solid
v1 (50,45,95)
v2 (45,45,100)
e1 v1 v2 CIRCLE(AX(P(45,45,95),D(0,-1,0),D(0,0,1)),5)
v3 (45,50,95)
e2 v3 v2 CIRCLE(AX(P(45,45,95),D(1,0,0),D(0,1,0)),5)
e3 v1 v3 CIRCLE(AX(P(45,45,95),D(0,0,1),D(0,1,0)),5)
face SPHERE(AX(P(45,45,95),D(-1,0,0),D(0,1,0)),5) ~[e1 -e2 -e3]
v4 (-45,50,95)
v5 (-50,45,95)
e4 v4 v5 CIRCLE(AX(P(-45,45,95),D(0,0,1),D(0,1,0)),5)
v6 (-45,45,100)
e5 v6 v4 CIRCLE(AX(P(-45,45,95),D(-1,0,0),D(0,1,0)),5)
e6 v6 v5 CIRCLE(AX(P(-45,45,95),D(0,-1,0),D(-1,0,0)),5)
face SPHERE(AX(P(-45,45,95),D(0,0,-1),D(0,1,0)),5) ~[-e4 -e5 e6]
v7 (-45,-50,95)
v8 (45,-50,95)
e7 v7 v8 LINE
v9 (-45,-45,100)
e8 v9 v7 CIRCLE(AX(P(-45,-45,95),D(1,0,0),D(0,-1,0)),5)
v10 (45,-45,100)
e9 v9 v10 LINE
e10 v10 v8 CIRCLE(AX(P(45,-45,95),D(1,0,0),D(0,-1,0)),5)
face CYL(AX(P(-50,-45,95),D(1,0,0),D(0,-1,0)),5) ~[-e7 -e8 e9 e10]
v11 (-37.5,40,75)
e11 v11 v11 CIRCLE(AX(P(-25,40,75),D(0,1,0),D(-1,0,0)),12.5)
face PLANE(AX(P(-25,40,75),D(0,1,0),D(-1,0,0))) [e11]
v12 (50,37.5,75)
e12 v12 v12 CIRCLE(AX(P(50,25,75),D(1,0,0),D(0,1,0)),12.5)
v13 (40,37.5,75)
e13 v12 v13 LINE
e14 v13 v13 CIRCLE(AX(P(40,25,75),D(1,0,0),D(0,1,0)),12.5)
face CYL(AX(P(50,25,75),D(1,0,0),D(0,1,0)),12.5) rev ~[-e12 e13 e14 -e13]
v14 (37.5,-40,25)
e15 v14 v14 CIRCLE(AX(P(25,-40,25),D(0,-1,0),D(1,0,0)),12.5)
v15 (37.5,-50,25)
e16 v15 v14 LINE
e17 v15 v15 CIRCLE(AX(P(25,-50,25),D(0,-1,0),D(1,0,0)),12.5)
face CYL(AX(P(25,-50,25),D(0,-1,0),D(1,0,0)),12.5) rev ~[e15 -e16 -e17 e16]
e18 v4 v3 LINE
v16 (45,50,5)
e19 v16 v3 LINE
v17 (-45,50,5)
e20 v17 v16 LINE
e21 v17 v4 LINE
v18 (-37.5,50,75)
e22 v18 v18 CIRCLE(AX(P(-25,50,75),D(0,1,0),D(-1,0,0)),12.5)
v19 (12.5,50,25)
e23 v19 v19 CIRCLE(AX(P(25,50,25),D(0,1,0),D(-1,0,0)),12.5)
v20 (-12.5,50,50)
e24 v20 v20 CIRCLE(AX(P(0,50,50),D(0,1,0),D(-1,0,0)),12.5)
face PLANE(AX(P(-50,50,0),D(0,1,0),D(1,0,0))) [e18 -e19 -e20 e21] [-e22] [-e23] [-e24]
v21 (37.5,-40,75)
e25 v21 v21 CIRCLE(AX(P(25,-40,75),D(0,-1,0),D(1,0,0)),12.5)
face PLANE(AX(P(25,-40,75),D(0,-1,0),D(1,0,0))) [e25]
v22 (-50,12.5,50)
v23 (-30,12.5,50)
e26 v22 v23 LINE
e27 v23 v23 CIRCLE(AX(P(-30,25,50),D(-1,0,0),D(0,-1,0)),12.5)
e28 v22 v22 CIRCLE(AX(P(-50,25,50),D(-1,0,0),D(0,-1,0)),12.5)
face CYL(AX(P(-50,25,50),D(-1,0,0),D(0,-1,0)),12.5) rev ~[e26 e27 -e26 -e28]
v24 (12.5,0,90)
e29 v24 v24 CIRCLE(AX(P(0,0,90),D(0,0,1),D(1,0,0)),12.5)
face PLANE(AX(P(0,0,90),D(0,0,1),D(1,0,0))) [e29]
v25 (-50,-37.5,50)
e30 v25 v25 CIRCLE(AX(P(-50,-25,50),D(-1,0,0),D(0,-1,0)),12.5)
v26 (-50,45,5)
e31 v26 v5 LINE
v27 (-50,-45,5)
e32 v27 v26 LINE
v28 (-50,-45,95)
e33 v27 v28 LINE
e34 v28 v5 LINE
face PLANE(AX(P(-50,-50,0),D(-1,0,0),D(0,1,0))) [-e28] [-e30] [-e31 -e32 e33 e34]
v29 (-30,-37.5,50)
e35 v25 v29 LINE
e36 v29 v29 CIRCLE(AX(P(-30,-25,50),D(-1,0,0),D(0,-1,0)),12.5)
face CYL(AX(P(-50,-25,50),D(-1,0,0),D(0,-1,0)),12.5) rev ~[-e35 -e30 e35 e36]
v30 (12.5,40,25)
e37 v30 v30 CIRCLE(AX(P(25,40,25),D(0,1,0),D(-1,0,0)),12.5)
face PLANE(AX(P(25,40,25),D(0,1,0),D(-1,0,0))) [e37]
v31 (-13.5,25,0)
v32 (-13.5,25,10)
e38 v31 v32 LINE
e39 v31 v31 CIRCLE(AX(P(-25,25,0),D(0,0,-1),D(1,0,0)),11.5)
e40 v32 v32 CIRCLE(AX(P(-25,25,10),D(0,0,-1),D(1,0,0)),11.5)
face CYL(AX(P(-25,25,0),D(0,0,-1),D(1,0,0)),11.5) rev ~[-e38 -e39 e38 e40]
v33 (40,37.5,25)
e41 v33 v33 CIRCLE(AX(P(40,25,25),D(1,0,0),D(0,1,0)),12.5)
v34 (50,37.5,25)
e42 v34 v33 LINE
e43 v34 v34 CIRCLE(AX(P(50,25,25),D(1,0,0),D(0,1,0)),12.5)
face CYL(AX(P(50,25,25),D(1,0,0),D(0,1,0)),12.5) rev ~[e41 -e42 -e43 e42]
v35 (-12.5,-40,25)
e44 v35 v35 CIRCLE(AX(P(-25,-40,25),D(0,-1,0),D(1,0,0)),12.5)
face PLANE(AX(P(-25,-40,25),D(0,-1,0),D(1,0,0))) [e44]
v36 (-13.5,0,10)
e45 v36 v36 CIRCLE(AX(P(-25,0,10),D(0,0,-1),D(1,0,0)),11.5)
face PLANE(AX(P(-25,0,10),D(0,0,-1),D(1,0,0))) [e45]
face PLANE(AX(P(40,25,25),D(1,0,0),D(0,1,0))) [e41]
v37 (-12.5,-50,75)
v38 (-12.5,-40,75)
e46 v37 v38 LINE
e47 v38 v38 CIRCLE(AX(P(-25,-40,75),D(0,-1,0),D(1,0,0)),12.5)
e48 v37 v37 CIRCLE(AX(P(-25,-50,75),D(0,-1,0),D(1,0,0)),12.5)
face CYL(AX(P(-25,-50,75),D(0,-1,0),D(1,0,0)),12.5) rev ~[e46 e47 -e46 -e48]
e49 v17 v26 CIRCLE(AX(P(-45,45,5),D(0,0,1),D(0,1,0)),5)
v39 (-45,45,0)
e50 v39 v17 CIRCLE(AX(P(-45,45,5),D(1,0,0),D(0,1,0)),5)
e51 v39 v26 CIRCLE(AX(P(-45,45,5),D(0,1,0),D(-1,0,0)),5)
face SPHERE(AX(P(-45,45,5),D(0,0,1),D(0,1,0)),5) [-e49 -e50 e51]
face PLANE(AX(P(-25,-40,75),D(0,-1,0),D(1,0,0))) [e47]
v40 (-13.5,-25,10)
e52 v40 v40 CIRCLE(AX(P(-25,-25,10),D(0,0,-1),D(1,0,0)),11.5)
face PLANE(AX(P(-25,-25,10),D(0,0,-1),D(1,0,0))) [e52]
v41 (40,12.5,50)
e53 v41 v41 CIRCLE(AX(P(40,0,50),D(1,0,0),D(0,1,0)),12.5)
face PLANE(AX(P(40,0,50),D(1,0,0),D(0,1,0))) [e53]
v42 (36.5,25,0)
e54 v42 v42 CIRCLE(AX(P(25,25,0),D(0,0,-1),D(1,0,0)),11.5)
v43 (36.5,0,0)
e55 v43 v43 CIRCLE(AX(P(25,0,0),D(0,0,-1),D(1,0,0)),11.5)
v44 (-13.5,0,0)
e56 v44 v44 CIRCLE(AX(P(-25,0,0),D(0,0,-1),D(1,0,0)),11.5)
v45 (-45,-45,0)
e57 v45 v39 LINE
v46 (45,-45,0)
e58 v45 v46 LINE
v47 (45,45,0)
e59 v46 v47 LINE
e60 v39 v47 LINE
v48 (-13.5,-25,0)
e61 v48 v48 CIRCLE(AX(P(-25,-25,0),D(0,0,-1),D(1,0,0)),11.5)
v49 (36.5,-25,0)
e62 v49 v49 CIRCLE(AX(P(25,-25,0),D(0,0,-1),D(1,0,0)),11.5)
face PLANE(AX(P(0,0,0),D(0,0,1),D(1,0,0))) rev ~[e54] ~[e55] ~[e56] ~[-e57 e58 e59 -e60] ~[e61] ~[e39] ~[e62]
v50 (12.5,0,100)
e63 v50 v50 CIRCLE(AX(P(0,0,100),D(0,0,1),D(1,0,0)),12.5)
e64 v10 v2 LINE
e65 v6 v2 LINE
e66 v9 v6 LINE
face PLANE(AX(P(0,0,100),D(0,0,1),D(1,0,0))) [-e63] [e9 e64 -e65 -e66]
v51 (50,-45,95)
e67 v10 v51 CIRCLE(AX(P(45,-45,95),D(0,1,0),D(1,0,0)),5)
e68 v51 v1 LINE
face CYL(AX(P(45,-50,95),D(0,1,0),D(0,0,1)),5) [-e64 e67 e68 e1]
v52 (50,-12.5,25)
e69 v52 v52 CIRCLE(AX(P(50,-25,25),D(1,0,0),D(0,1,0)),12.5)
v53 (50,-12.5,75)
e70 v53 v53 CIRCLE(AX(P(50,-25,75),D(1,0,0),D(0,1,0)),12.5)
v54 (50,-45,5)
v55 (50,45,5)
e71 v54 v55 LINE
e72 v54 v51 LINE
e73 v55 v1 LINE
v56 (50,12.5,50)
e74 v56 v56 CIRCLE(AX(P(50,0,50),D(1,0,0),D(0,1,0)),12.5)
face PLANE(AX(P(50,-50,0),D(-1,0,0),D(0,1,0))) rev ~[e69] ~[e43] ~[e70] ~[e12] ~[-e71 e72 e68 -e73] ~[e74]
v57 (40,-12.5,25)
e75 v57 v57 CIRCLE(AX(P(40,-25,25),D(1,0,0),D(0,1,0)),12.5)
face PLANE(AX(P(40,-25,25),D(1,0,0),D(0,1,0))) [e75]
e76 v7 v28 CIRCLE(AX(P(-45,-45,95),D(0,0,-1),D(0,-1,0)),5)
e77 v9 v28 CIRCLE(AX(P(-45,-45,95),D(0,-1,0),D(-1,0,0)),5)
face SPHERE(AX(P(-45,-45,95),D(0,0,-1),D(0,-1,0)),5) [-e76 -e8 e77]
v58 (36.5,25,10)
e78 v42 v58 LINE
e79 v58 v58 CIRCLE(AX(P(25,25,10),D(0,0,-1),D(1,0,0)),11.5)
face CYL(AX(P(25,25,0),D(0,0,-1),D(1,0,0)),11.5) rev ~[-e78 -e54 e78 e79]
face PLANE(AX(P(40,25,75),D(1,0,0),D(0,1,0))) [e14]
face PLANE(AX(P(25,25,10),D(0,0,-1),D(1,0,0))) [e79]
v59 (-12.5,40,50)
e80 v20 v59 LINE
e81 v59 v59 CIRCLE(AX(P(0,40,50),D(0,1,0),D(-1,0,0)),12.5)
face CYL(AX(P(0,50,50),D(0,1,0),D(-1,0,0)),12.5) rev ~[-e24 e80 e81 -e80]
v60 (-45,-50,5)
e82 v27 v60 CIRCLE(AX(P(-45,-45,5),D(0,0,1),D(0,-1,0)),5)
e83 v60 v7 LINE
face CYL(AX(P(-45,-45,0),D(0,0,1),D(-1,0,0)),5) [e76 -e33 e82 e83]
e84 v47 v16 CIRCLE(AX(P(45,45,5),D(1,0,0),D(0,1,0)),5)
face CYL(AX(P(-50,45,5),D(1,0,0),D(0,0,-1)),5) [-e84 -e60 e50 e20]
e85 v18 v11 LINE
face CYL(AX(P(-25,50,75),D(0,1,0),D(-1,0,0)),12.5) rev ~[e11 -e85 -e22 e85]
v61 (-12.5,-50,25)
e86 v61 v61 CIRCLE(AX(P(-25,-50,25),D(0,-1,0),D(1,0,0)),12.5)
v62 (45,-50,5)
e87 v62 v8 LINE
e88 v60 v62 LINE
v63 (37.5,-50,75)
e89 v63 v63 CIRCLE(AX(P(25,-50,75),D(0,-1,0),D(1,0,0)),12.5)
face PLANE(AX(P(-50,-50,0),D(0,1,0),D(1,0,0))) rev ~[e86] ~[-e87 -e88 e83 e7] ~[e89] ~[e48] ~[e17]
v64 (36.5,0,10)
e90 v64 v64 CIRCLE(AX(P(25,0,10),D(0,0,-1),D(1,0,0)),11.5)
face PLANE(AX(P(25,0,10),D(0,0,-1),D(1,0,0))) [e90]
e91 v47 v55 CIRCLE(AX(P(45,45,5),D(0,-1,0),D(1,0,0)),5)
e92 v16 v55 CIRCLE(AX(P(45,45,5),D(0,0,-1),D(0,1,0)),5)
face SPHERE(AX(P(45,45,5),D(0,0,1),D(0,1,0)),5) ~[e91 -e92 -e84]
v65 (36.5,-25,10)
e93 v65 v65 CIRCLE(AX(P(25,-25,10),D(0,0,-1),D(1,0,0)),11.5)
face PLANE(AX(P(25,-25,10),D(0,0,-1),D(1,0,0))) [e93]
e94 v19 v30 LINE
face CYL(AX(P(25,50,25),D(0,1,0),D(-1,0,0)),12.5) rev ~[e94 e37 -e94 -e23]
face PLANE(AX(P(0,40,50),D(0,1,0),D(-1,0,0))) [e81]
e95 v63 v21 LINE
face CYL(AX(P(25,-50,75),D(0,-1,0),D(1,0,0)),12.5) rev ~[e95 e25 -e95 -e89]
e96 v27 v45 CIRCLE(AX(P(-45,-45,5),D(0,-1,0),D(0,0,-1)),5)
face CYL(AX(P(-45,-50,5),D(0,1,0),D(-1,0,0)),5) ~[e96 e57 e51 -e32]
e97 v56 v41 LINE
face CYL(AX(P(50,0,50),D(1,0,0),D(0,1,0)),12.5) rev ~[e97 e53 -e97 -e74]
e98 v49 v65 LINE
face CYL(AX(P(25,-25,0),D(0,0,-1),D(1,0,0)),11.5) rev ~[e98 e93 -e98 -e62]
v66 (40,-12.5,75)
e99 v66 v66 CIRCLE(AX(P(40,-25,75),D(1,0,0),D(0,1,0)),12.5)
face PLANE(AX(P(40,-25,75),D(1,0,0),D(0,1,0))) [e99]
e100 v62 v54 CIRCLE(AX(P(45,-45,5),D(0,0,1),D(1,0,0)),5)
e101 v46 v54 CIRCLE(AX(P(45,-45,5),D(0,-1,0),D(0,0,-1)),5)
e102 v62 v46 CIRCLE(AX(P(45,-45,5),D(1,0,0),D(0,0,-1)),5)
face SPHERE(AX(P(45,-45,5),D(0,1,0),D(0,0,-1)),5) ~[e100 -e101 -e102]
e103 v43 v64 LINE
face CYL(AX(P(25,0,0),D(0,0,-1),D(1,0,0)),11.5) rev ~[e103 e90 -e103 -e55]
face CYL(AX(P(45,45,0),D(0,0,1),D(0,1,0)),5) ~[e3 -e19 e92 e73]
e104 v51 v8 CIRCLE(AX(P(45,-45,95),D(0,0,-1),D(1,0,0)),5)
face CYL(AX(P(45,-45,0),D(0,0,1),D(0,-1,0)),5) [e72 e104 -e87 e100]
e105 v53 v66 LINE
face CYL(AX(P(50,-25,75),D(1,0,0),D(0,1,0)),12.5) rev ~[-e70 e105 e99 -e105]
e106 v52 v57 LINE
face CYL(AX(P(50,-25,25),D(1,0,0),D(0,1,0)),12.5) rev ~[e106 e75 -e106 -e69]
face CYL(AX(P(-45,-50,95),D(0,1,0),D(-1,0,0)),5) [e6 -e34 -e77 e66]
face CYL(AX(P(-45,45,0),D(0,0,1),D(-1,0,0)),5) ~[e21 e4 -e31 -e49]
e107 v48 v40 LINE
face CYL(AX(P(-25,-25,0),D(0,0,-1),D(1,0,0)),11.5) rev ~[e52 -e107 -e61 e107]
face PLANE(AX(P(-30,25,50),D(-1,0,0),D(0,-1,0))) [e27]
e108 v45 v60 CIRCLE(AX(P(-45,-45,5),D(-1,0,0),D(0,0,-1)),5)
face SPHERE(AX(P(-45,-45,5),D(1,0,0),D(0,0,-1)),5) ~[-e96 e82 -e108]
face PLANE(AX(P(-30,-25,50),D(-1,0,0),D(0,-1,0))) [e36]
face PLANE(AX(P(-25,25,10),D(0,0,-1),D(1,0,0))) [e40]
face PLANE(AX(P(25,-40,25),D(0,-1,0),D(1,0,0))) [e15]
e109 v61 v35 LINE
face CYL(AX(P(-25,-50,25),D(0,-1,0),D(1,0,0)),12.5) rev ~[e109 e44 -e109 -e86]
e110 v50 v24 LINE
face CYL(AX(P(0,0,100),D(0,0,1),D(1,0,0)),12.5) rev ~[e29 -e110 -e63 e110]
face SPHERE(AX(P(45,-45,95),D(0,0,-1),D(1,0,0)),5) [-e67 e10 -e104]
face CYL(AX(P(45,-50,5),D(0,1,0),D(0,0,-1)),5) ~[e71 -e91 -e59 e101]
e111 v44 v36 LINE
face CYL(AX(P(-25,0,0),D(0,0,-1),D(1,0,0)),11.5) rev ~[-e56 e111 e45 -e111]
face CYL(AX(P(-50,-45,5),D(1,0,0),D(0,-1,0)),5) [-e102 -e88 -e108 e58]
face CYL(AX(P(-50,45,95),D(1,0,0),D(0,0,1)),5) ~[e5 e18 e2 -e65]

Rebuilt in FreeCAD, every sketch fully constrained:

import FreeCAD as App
import Part
import Sketcher


def edges_at(feature, points):
    """Names of the edges that pass closest to the given points."""
    edges = feature.Shape.Edges
    near = lambda p: min(range(len(edges)), key=lambda i: edges[i].distToShape(Part.Vertex(*p))[0])
    return sorted({f"Edge{near(p) + 1}" for p in points})

doc = App.newDocument("Part")
body = doc.addObject("PartDesign::Body", "Body")

sketch1 = body.newObject("Sketcher::SketchObject", "Sketch")
sketch1.AttachmentSupport = (doc.getObject("XY_Plane"), [""])
sketch1.MapMode = "FlatFace"
sketch1.addGeometry([
    Part.LineSegment(App.Vector(-50, 50, 0), App.Vector(-50, -50, 0)),
    Part.LineSegment(App.Vector(-50, -50, 0), App.Vector(50, -50, 0)),
    Part.LineSegment(App.Vector(50, -50, 0), App.Vector(50, 50, 0)),
    Part.LineSegment(App.Vector(50, 50, 0), App.Vector(-50, 50, 0)),
], False)
sketch1.addConstraint([
    Sketcher.Constraint("Coincident", 0, 2, 1, 1),
    Sketcher.Constraint("Coincident", 1, 2, 2, 1),
    Sketcher.Constraint("Coincident", 2, 2, 3, 1),
    Sketcher.Constraint("Coincident", 3, 2, 0, 1),
    Sketcher.Constraint("Vertical", 0),
    Sketcher.Constraint("Horizontal", 1),
    Sketcher.Constraint("Vertical", 2),
    Sketcher.Constraint("Horizontal", 3),
    Sketcher.Constraint("Symmetric", 0, 2, 2, 2, -1, 1),
    Sketcher.Constraint("Equal", 3, 0),
    Sketcher.Constraint("DistanceX", 1, 1, 1, 2, 100.0),
])
pad1 = body.newObject("PartDesign::Pad", "Pad")
pad1.Profile = sketch1
pad1.Length = 100

sketch2 = body.newObject("Sketcher::SketchObject", "Sketch001")
sketch2.AttachmentSupport = (doc.getObject("XY_Plane"), [""])
sketch2.MapMode = "FlatFace"
sketch2.AttachmentOffset = App.Placement(App.Vector(0, 0, 100), App.Rotation())
sketch2.addGeometry(Part.Circle(App.Vector(0, 0, 0), App.Vector(0, 0, 1), 12), False)
sketch2.addConstraint([
    Sketcher.Constraint("Coincident", 0, 3, -1, 1),
    Sketcher.Constraint("Diameter", 0, 25.0),
])
pocket1 = body.newObject("PartDesign::Pocket", "Pocket")
pocket1.Profile = sketch2
pocket1.Length = 10

sketch3 = body.newObject("Sketcher::SketchObject", "Sketch002")
sketch3.AttachmentSupport = (doc.getObject("YZ_Plane"), [""])
sketch3.MapMode = "FlatFace"
sketch3.AttachmentOffset = App.Placement(App.Vector(0, 0, -50), App.Rotation())
sketch3.addGeometry([
    Part.Circle(App.Vector(25, 50, 0), App.Vector(0, 0, 1), 12),
    Part.Circle(App.Vector(-25, 50, 0), App.Vector(0, 0, 1), 12),
], False)
sketch3.addConstraint([
    Sketcher.Constraint("Equal", 0, 1),
    Sketcher.Constraint("Symmetric", 0, 3, 1, 3, -2),
    Sketcher.Constraint("Diameter", 0, 25.0),
    Sketcher.Constraint("DistanceX", -1, 1, 0, 3, 25.0),
    Sketcher.Constraint("DistanceY", -1, 1, 0, 3, 50.0),
])
pocket2 = body.newObject("PartDesign::Pocket", "Pocket001")
pocket2.Profile = sketch3
pocket2.Length = 20
pocket2.Reversed = True

sketch4 = body.newObject("Sketcher::SketchObject", "Sketch003")
sketch4.AttachmentSupport = (doc.getObject("XZ_Plane"), [""])
sketch4.MapMode = "FlatFace"
sketch4.AttachmentOffset = App.Placement(App.Vector(0, 0, -50), App.Rotation())
sketch4.addGeometry(Part.Circle(App.Vector(0, 50, 0), App.Vector(0, 0, 1), 12), False)
sketch4.addConstraint([
    Sketcher.Constraint("PointOnObject", 0, 3, -2),
    Sketcher.Constraint("Diameter", 0, 25.0),
    Sketcher.Constraint("DistanceY", -1, 1, 0, 3, 50.0),
])
pocket3 = body.newObject("PartDesign::Pocket", "Pocket002")
pocket3.Profile = sketch4
pocket3.Length = 10
pocket3.Reversed = True

sketch5 = body.newObject("Sketcher::SketchObject", "Sketch004")
sketch5.AttachmentSupport = (doc.getObject("XZ_Plane"), [""])
sketch5.MapMode = "FlatFace"
sketch5.AttachmentOffset = App.Placement(App.Vector(0, 0, -50), App.Rotation())
sketch5.addGeometry([
    Part.Circle(App.Vector(25, 25, 0), App.Vector(0, 0, 1), 12),
    Part.Circle(App.Vector(-25, 75, 0), App.Vector(0, 0, 1), 12),
], False)
sketch5.addConstraint([
    Sketcher.Constraint("Equal", 0, 1),
    Sketcher.Constraint("Diameter", 0, 25.0),
    Sketcher.Constraint("DistanceX", -1, 1, 0, 3, 25.0),
    Sketcher.Constraint("DistanceY", -1, 1, 0, 3, 25.0),
    Sketcher.Constraint("DistanceX", 1, 3, -1, 1, 25.0),
    Sketcher.Constraint("DistanceY", -1, 1, 1, 3, 75.0),
])
pocket4 = body.newObject("PartDesign::Pocket", "Pocket003")
pocket4.Profile = sketch5
pocket4.Length = 10
pocket4.Reversed = True

sketch6 = body.newObject("Sketcher::SketchObject", "Sketch005")
sketch6.AttachmentSupport = (doc.getObject("XZ_Plane"), [""])
sketch6.MapMode = "FlatFace"
sketch6.AttachmentOffset = App.Placement(App.Vector(0, 0, 50), App.Rotation())
sketch6.addGeometry([
    Part.Circle(App.Vector(-25, 75, 0), App.Vector(0, 0, 1), 12),
    Part.Circle(App.Vector(-25, 25, 0), App.Vector(0, 0, 1), 12),
    Part.Circle(App.Vector(25, 25, 0), App.Vector(0, 0, 1), 12),
    Part.Circle(App.Vector(25, 75, 0), App.Vector(0, 0, 1), 12),
], False)
sketch6.addConstraint([
    Sketcher.Constraint("Equal", 0, 1),
    Sketcher.Constraint("Equal", 1, 2),
    Sketcher.Constraint("Equal", 2, 3),
    Sketcher.Constraint("Symmetric", 1, 3, 2, 3, -2),
    Sketcher.Constraint("Symmetric", 0, 3, 3, 3, -2),
    Sketcher.Constraint("Vertical", 0, 3, 1, 3),
    Sketcher.Constraint("Diameter", 0, 25.0),
    Sketcher.Constraint("DistanceX", 0, 3, -1, 1, 25.0),
    Sketcher.Constraint("DistanceY", -1, 1, 0, 3, 75.0),
    Sketcher.Constraint("DistanceY", -1, 1, 1, 3, 25.0),
])
pocket5 = body.newObject("PartDesign::Pocket", "Pocket004")
pocket5.Profile = sketch6
pocket5.Length = 10

sketch7 = body.newObject("Sketcher::SketchObject", "Sketch006")
sketch7.AttachmentSupport = (doc.getObject("YZ_Plane"), [""])
sketch7.MapMode = "FlatFace"
sketch7.AttachmentOffset = App.Placement(App.Vector(0, 0, 50), App.Rotation())
sketch7.addGeometry([
    Part.Circle(App.Vector(-25, 75, 0), App.Vector(0, 0, 1), 12),
    Part.Circle(App.Vector(25, 75, 0), App.Vector(0, 0, 1), 12),
    Part.Circle(App.Vector(-25, 25, 0), App.Vector(0, 0, 1), 12),
    Part.Circle(App.Vector(25, 25, 0), App.Vector(0, 0, 1), 12),
    Part.Circle(App.Vector(0, 50, 0), App.Vector(0, 0, 1), 12),
], False)
sketch7.addConstraint([
    Sketcher.Constraint("Equal", 0, 1),
    Sketcher.Constraint("Equal", 1, 2),
    Sketcher.Constraint("Equal", 2, 3),
    Sketcher.Constraint("Equal", 3, 4),
    Sketcher.Constraint("Symmetric", 0, 3, 1, 3, -2),
    Sketcher.Constraint("Symmetric", 2, 3, 3, 3, -2),
    Sketcher.Constraint("PointOnObject", 4, 3, -2),
    Sketcher.Constraint("Vertical", 0, 3, 2, 3),
    Sketcher.Constraint("Diameter", 0, 25.0),
    Sketcher.Constraint("DistanceX", 0, 3, -1, 1, 25.0),
    Sketcher.Constraint("DistanceY", -1, 1, 0, 3, 75.0),
    Sketcher.Constraint("DistanceY", -1, 1, 2, 3, 25.0),
    Sketcher.Constraint("DistanceY", -1, 1, 4, 3, 50.0),
])
pocket6 = body.newObject("PartDesign::Pocket", "Pocket005")
pocket6.Profile = sketch7
pocket6.Length = 10

sketch8 = body.newObject("Sketcher::SketchObject", "Sketch007")
sketch8.AttachmentSupport = (doc.getObject("XY_Plane"), [""])
sketch8.MapMode = "FlatFace"
sketch8.addGeometry([
    Part.Circle(App.Vector(-25, -25, 0), App.Vector(0, 0, 1), 12),
    Part.Circle(App.Vector(-25, 0, 0), App.Vector(0, 0, 1), 12),
    Part.Circle(App.Vector(-25, 25, 0), App.Vector(0, 0, 1), 12),
    Part.Circle(App.Vector(25, 25, 0), App.Vector(0, 0, 1), 12),
    Part.Circle(App.Vector(25, 0, 0), App.Vector(0, 0, 1), 12),
    Part.Circle(App.Vector(25, -25, 0), App.Vector(0, 0, 1), 12),
], False)
sketch8.addConstraint([
    Sketcher.Constraint("Equal", 0, 1),
    Sketcher.Constraint("Equal", 1, 2),
    Sketcher.Constraint("Equal", 2, 3),
    Sketcher.Constraint("Equal", 3, 4),
    Sketcher.Constraint("Equal", 4, 5),
    Sketcher.Constraint("Symmetric", 0, 3, 3, 3, -1, 1),
    Sketcher.Constraint("Symmetric", 1, 3, 4, 3, -1, 1),
    Sketcher.Constraint("Symmetric", 2, 3, 5, 3, -1, 1),
    Sketcher.Constraint("Symmetric", 2, 3, 3, 3, -2),
    Sketcher.Constraint("PointOnObject", 1, 3, -1),
    Sketcher.Constraint("Vertical", 0, 3, 1, 3),
    Sketcher.Constraint("Diameter", 0, 23.0),
    Sketcher.Constraint("DistanceX", 0, 3, -1, 1, 25.0),
    Sketcher.Constraint("DistanceY", 0, 3, -1, 1, 25.0),
])
pocket7 = body.newObject("PartDesign::Pocket", "Pocket006")
pocket7.Profile = sketch8
pocket7.Length = 10
pocket7.Reversed = True
doc.recompute()

fillet = body.newObject("PartDesign::Fillet", "Fillet")
fillet.Base = (pocket7, edges_at(pocket7, [
    (-50, 50, 50),
    (0, 50, 100),
    (50, 50, 50),
    (0, 50, 0),
    (50, 0, 0),
    (0, -50, 0),
    (-50, 0, 0),
    (-50, -50, 50),
    (50, -50, 50),
    (50, 0, 100),
    (0, -50, 100),
    (-50, 0, 100),
]))
fillet.Radius = 5

doc.recompute()
